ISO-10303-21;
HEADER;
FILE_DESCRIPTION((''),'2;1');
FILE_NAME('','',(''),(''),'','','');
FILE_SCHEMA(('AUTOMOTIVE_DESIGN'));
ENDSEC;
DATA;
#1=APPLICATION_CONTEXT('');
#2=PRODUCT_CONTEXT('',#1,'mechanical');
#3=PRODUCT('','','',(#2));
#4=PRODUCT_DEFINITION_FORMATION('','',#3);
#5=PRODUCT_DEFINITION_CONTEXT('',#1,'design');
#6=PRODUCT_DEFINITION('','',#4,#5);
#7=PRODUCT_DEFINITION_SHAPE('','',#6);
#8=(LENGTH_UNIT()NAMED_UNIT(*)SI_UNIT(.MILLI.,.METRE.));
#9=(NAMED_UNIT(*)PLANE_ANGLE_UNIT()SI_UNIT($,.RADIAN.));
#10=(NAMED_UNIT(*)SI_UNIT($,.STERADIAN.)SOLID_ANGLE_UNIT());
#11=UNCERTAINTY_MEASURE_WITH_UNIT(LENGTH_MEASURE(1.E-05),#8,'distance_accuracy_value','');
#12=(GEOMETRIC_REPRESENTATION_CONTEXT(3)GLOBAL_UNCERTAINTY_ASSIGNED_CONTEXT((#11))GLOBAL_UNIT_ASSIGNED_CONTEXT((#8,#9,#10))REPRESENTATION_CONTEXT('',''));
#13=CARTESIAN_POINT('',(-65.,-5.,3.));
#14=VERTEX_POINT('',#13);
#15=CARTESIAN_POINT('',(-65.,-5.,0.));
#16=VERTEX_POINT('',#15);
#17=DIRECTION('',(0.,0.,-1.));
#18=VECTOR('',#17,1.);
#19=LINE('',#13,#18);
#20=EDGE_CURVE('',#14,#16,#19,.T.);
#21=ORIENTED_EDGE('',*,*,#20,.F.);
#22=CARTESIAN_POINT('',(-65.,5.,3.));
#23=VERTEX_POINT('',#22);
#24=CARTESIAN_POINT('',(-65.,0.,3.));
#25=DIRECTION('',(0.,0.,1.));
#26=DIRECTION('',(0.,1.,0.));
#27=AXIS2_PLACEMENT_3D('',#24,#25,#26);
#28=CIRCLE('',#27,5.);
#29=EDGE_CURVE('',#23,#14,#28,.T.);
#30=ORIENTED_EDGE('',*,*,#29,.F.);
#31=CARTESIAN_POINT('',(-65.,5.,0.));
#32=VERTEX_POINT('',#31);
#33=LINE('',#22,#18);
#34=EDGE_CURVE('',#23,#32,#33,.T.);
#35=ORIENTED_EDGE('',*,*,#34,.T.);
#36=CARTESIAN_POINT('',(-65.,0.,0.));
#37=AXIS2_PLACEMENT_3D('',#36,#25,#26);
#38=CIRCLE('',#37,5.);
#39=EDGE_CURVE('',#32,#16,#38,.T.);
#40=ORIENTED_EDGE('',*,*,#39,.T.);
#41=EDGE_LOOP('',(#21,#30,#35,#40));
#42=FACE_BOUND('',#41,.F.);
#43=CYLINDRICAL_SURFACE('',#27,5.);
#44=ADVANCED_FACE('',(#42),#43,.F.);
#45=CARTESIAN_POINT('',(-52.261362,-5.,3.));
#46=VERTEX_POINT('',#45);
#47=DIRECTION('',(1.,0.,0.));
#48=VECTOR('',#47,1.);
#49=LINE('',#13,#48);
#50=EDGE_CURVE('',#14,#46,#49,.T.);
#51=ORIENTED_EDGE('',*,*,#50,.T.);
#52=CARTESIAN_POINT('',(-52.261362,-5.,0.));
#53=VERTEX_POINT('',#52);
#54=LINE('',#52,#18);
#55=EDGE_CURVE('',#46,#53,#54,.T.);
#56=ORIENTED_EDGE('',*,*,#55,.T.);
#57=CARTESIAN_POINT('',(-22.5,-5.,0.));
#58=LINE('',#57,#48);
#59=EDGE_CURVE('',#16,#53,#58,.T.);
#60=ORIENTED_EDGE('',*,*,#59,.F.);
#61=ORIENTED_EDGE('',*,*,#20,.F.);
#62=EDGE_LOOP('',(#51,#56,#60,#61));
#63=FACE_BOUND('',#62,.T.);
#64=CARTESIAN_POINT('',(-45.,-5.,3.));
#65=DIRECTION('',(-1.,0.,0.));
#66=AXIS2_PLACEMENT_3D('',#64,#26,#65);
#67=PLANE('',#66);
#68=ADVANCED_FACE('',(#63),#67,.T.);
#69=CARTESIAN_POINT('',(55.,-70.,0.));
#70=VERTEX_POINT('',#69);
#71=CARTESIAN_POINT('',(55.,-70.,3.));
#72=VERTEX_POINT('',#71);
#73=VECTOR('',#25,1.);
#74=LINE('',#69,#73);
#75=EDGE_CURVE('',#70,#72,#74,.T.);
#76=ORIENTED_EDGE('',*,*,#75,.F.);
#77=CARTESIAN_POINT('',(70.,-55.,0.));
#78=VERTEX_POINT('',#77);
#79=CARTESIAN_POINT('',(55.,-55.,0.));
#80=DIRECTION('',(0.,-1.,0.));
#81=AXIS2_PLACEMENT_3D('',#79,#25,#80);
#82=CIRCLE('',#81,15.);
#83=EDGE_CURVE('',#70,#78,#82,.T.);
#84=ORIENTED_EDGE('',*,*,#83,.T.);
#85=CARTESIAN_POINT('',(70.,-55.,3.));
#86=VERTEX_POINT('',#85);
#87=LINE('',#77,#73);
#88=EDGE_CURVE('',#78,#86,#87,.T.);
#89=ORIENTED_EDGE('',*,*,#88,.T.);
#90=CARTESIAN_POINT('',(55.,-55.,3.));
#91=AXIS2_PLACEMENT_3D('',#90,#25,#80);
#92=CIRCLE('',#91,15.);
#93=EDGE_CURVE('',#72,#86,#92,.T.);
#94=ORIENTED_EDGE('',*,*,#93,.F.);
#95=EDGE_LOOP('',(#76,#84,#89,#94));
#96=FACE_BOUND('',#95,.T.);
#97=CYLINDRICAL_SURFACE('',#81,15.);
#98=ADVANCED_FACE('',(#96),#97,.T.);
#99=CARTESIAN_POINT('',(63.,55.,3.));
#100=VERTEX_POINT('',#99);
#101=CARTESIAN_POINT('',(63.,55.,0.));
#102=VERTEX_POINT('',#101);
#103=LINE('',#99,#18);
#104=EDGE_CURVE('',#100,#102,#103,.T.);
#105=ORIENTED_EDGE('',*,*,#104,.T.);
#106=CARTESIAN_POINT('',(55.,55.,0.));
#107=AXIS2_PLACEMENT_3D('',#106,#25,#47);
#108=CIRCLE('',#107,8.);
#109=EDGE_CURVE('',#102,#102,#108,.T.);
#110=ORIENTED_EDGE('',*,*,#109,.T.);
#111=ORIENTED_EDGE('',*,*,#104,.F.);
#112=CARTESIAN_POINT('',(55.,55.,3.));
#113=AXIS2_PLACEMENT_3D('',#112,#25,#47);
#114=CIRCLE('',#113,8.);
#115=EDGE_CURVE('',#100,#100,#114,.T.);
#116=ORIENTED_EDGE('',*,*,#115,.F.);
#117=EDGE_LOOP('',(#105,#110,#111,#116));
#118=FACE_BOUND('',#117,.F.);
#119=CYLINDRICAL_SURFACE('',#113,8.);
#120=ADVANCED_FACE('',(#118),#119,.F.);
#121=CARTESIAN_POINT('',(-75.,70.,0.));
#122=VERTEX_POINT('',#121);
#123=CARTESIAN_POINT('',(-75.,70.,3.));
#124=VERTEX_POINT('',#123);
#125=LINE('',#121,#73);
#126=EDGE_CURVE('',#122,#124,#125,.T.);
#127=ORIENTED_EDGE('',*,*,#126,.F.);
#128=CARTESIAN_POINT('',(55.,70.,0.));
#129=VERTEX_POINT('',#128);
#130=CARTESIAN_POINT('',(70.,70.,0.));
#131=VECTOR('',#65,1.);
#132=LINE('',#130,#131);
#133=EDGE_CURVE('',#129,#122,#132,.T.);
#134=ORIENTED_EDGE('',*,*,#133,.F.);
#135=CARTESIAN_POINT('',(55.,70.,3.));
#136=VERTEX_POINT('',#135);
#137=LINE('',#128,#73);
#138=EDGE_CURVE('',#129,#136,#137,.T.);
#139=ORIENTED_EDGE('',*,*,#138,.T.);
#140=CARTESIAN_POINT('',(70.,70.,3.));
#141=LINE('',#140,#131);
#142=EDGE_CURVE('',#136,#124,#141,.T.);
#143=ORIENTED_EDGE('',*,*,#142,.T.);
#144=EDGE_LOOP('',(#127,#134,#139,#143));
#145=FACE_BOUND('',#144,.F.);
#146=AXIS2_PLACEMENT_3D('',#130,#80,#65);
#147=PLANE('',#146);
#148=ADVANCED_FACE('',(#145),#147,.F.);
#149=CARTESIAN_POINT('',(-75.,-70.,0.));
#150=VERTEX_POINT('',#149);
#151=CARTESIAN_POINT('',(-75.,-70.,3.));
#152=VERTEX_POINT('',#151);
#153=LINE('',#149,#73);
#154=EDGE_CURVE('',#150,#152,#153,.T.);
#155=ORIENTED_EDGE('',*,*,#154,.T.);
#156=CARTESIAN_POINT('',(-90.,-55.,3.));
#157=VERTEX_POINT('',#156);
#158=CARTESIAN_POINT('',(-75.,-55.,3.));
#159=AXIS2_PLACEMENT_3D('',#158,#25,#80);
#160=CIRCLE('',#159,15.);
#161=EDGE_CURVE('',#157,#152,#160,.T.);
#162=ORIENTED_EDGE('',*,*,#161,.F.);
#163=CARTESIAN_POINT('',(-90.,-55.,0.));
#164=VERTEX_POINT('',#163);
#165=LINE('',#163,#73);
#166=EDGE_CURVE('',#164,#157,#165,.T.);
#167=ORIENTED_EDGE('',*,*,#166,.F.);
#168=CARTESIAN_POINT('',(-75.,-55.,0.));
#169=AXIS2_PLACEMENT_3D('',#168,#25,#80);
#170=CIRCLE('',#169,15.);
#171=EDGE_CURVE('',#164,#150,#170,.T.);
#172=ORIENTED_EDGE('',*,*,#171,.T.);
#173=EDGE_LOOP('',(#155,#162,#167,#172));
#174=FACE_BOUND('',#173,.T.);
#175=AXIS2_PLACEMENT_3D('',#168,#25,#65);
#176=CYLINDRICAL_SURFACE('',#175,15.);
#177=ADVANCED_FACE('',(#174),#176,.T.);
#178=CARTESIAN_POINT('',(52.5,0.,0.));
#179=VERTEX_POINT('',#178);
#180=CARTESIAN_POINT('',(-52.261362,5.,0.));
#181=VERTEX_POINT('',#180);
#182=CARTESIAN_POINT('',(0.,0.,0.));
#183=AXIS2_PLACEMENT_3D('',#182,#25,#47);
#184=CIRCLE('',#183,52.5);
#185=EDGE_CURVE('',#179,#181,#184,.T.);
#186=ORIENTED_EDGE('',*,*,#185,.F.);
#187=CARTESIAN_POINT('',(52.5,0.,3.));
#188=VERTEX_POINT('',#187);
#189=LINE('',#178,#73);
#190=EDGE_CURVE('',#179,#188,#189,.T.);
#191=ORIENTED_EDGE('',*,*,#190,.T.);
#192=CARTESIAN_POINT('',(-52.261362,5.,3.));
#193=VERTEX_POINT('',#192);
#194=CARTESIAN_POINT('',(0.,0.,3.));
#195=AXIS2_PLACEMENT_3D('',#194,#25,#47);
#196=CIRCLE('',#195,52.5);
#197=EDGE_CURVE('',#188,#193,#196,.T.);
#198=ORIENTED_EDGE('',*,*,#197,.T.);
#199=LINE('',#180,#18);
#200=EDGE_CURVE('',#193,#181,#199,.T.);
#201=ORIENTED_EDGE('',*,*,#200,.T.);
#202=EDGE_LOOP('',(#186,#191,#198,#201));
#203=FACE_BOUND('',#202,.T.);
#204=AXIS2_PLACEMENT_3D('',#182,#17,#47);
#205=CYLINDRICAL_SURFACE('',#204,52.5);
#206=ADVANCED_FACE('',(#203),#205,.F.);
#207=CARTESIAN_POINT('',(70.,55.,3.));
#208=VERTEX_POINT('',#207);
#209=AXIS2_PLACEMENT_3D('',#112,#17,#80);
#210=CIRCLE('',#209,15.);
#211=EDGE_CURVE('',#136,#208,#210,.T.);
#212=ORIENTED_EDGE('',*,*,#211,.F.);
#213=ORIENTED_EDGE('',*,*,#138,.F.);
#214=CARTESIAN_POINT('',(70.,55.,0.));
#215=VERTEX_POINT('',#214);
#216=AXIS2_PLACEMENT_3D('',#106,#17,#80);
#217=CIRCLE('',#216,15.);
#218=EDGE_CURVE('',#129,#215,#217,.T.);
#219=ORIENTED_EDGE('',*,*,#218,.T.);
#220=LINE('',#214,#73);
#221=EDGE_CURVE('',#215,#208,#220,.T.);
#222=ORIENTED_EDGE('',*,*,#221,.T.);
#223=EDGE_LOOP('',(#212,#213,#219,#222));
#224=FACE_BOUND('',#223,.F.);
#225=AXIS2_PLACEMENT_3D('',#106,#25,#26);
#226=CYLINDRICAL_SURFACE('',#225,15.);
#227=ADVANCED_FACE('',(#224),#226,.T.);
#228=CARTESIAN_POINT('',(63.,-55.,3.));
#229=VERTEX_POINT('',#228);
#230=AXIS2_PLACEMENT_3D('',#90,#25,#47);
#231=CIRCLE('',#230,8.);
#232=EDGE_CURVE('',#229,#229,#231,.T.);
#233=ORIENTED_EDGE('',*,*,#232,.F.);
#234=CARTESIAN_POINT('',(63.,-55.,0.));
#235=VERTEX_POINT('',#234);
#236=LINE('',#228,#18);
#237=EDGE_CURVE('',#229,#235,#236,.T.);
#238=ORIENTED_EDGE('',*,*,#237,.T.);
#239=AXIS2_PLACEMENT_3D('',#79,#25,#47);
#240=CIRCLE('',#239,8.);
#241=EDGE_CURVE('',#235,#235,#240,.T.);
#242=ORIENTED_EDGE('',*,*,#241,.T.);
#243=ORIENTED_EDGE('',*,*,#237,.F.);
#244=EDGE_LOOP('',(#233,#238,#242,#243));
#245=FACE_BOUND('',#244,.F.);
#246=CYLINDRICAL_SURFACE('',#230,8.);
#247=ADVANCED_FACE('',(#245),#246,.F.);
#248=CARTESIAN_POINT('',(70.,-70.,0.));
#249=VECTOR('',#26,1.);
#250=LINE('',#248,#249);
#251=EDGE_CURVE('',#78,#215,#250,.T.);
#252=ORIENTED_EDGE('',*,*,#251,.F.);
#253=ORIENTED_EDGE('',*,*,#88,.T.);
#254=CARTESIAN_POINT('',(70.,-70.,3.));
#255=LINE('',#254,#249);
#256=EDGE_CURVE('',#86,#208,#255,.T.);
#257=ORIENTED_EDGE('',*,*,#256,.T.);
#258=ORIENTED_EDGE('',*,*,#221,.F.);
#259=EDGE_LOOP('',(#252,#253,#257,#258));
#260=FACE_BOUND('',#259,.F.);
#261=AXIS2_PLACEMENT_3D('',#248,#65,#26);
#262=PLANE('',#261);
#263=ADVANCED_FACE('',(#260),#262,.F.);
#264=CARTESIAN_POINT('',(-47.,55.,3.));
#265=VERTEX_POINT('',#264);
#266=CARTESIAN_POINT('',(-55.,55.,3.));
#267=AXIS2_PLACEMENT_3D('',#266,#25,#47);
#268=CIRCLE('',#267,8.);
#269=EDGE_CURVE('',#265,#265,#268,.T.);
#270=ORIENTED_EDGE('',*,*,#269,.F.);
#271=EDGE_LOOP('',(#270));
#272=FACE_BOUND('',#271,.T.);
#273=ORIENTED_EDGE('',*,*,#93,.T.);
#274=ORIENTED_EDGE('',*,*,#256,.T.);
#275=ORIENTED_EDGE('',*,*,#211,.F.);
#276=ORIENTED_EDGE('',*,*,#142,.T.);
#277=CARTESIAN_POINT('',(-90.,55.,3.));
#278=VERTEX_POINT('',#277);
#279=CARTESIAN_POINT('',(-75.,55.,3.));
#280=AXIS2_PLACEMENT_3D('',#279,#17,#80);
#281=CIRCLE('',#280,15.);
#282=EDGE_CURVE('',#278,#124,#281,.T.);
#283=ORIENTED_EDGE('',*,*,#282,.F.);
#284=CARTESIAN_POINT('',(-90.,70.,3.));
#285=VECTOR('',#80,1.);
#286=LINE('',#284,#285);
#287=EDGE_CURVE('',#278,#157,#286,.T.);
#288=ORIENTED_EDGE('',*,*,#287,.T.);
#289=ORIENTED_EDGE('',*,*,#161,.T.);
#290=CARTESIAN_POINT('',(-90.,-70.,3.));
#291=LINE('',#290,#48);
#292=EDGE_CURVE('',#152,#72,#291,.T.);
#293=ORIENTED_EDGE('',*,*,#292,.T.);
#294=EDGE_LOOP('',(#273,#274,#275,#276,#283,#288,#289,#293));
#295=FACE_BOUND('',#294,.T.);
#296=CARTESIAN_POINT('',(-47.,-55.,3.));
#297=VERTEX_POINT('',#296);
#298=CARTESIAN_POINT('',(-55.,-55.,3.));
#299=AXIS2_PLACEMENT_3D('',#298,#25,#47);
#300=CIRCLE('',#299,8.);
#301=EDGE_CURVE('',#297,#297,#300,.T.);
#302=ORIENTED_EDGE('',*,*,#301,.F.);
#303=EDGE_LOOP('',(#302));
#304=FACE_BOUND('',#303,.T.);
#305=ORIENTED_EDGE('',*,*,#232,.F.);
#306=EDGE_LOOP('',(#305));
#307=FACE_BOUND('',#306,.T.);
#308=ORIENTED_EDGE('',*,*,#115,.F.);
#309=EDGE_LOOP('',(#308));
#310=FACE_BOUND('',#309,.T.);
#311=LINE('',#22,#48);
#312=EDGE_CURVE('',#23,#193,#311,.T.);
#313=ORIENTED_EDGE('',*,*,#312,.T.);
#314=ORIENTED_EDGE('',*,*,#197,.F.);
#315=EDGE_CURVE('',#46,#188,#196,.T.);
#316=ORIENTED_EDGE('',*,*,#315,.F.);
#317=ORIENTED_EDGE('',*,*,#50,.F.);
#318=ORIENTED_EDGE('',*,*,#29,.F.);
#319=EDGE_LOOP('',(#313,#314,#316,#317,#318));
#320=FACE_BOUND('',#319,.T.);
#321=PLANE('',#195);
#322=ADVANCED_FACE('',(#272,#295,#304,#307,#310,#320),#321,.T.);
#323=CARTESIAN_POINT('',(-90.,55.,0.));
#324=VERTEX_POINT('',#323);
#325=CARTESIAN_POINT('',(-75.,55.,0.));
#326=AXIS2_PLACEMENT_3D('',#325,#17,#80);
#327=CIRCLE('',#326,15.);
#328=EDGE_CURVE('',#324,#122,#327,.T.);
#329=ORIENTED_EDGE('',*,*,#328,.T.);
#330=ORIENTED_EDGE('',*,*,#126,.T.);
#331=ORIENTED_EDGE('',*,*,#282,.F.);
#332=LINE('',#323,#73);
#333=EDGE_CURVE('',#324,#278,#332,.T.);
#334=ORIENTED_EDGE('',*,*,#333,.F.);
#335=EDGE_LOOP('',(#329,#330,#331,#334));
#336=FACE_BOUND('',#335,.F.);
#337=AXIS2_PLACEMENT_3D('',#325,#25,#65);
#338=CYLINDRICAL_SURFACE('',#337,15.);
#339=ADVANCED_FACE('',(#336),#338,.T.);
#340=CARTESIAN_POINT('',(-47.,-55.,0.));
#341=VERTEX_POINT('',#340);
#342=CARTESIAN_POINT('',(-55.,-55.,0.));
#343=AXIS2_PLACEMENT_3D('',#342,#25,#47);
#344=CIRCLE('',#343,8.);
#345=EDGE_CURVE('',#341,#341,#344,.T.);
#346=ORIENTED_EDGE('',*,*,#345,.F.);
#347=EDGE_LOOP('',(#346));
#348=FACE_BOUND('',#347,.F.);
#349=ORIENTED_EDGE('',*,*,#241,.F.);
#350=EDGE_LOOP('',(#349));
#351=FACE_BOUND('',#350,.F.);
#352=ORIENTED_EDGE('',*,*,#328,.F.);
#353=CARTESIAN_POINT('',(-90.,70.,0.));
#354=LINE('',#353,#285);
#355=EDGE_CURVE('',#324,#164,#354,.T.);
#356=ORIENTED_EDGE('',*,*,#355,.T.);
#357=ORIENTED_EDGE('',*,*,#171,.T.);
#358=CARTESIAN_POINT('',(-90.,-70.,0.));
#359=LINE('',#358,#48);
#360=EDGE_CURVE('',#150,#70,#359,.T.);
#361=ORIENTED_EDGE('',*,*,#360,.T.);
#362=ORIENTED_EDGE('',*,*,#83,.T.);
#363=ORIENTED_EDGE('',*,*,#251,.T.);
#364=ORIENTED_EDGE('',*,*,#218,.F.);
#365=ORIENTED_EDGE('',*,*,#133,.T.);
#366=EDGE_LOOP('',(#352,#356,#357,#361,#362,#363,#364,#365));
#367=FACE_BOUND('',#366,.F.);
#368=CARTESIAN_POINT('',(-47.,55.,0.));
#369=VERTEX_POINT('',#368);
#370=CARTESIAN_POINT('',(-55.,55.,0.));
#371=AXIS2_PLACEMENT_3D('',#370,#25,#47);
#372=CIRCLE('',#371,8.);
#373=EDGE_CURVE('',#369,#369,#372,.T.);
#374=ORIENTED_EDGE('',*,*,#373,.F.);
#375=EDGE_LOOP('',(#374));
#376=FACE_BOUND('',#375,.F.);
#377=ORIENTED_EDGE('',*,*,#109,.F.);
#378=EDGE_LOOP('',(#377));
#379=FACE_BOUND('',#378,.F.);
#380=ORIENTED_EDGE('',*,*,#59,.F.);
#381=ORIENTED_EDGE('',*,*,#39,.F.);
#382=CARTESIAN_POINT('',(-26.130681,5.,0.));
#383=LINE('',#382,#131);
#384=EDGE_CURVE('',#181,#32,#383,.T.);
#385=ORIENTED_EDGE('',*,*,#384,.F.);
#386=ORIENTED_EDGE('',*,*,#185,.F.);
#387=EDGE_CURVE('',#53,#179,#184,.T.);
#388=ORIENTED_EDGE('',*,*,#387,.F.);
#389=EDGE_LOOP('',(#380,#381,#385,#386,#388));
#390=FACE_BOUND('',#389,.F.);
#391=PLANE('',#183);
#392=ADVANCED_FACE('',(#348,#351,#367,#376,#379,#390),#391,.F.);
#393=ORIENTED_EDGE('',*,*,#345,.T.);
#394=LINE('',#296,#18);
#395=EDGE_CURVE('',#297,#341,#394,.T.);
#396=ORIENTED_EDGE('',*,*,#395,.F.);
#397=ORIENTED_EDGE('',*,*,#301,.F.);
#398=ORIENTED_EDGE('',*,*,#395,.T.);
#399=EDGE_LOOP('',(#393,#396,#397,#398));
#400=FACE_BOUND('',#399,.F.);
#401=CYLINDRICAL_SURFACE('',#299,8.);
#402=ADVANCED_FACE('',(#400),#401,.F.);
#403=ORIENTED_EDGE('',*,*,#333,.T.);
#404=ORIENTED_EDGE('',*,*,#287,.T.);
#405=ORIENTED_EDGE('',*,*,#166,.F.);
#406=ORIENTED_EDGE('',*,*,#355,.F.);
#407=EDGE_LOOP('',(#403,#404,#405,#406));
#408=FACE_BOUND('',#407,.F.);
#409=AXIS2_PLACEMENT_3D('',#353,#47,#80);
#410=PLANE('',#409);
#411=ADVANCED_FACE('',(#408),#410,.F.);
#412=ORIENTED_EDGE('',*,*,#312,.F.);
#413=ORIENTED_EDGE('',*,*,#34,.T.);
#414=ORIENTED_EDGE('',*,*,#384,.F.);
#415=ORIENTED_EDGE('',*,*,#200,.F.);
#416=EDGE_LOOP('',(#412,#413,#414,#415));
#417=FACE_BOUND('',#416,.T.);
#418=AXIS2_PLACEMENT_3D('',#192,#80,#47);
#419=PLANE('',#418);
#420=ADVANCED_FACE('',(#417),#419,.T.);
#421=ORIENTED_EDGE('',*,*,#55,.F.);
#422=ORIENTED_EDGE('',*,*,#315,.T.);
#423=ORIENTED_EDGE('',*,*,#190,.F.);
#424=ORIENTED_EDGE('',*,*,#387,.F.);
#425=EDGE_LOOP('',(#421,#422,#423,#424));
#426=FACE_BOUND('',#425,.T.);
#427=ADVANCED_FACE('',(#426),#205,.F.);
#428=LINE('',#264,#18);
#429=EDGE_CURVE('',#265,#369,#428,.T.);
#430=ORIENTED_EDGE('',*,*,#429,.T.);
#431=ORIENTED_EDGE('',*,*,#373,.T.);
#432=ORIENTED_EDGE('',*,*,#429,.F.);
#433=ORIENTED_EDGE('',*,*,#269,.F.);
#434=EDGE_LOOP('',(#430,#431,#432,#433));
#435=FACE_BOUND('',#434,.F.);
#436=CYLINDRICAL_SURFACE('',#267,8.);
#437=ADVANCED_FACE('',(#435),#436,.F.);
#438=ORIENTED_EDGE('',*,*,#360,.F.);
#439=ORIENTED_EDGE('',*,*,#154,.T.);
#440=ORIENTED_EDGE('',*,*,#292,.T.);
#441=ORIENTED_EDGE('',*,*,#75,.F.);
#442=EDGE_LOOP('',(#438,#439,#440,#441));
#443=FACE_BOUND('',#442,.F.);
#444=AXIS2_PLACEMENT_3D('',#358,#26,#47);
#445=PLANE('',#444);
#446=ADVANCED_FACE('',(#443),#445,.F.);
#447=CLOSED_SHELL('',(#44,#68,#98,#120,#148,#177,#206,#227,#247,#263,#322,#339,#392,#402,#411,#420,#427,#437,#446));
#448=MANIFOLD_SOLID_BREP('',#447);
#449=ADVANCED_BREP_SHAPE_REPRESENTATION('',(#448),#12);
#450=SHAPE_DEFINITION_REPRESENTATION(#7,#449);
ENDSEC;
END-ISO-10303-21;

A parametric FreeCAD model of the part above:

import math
import FreeCAD as App
import Part
import Sketcher
Q = App.Units.Quantity


def edges_at(feature, points):
    """Names of the edges that pass closest to the given points."""
    edges = feature.Shape.Edges
    near = lambda p: min(range(len(edges)), key=lambda i: edges[i].distToShape(Part.Vertex(*p))[0])
    return sorted({f"Edge{near(p) + 1}" for p in points})

doc = App.newDocument("Part")
body = doc.addObject("PartDesign::Body", "Body")

# Sketch on XY plane
sketch1 = body.newObject("Sketcher::SketchObject", "Sketch")
sketch1.AttachmentSupport = (doc.getObject("XY_Plane"), [""])
sketch1.MapMode = "FlatFace"
sketch1.addGeometry(Part.LineSegment(App.Vector(-90, 70, 0), App.Vector(-90, -70, 0)), False)
sketch1.addGeometry(Part.LineSegment(App.Vector(-90, -70, 0), App.Vector(70, -70, 0)), False)
sketch1.addGeometry(Part.LineSegment(App.Vector(70, -70, 0), App.Vector(70, 70, 0)), False)
sketch1.addGeometry(Part.LineSegment(App.Vector(70, 70, 0), App.Vector(-90, 70, 0)), False)
sketch1.addGeometry(Part.Circle(App.Vector(0, 0, 0), App.Vector(0, 0, 1), 52.5), False)
sketch1.addConstraint(Sketcher.Constraint("Coincident", 0, 2, 1, 1))
sketch1.addConstraint(Sketcher.Constraint("Coincident", 1, 2, 2, 1))
sketch1.addConstraint(Sketcher.Constraint("Coincident", 2, 2, 3, 1))
sketch1.addConstraint(Sketcher.Constraint("Coincident", 3, 2, 0, 1))
sketch1.addConstraint(Sketcher.Constraint("Vertical", 0))
sketch1.addConstraint(Sketcher.Constraint("Horizontal", 1))
sketch1.addConstraint(Sketcher.Constraint("Vertical", 2))
sketch1.addConstraint(Sketcher.Constraint("Horizontal", 3))
sketch1.addConstraint(Sketcher.Constraint("Coincident", 4, 3, -1, 1))
sketch1.addConstraint(Sketcher.Constraint("Diameter", 4, Q("105 mm")))
sketch1.addConstraint(Sketcher.Constraint("DistanceX", 1, 1, 1, 2, Q("160 mm")))
sketch1.addConstraint(Sketcher.Constraint("DistanceY", 0, 2, 0, 1, Q("140 mm")))
sketch1.addConstraint(Sketcher.Constraint("DistanceY", 0, 2, -1, 1, Q("70 mm")))
sketch1.addConstraint(Sketcher.Constraint("DistanceX", -1, 1, 1, 2, Q("70 mm")))
pad1 = body.newObject("PartDesign::Pad", "Pad")
pad1.Profile = sketch1
pad1.Length = 3

# Sketch on XY plane
sketch2 = body.newObject("Sketcher::SketchObject", "Sketch001")
sketch2.AttachmentSupport = (doc.getObject("XY_Plane"), [""])
sketch2.MapMode = "FlatFace"
sketch2.AttachmentOffset = App.Placement(App.Vector(0, 0, 3), App.Rotation())
sketch2.addGeometry(Part.Circle(App.Vector(-55, 55, 0), App.Vector(0, 0, 1), 8), False)
sketch2.addGeometry(Part.Circle(App.Vector(55, 55, 0), App.Vector(0, 0, 1), 8), False)
sketch2.addGeometry(Part.Circle(App.Vector(55, -55, 0), App.Vector(0, 0, 1), 8), False)
sketch2.addGeometry(Part.Circle(App.Vector(-55, -55, 0), App.Vector(0, 0, 1), 8), False)
sketch2.addConstraint(Sketcher.Constraint("Equal", 0, 1))
sketch2.addConstraint(Sketcher.Constraint("Equal", 1, 2))
sketch2.addConstraint(Sketcher.Constraint("Equal", 2, 3))
sketch2.addConstraint(Sketcher.Constraint("Symmetric", 0, 3, 2, 3, -1, 1))
sketch2.addConstraint(Sketcher.Constraint("Symmetric", 1, 3, 3, 3, -1, 1))
sketch2.addConstraint(Sketcher.Constraint("Symmetric", 0, 3, 1, 3, -2))
sketch2.addConstraint(Sketcher.Constraint("Diameter", 0, Q("16 mm")))
sketch2.addConstraint(Sketcher.Constraint("DistanceX", 0, 3, 1, 3, Q("110 mm")))
sketch2.addConstraint(Sketcher.Constraint("DistanceY", 2, 3, 1, 3, Q("110 mm")))
pocket1 = body.newObject("PartDesign::Pocket", "Pocket")
pocket1.Profile = sketch2
pocket1.Length = 3

# Sketch on XY plane
sketch3 = body.newObject("Sketcher::SketchObject", "Sketch002")
sketch3.AttachmentSupport = (doc.getObject("XY_Plane"), [""])
sketch3.MapMode = "FlatFace"
sketch3.AttachmentOffset = App.Placement(App.Vector(0, 0, 3), App.Rotation())
sketch3.addGeometry(Part.LineSegment(App.Vector(-45, 5, 0), App.Vector(-65, 5, 0)), False)
sketch3.addGeometry(Part.ArcOfCircle(Part.Circle(App.Vector(-65, 0, 0), App.Vector(0, 0, 1), 5), math.radians(90), math.radians(270)), False)
sketch3.addGeometry(Part.LineSegment(App.Vector(-65, -5, 0), App.Vector(-45, -5, 0)), False)
sketch3.addGeometry(Part.LineSegment(App.Vector(-45, -5, 0), App.Vector(-45, 5, 0)), False)
sketch3.addConstraint(Sketcher.Constraint("Tangent", 0, 2, 1, 1))
sketch3.addConstraint(Sketcher.Constraint("Tangent", 1, 2, 2, 1))
sketch3.addConstraint(Sketcher.Constraint("Coincident", 2, 2, 3, 1))
sketch3.addConstraint(Sketcher.Constraint("Coincident", 3, 2, 0, 1))
sketch3.addConstraint(Sketcher.Constraint("Horizontal", 0))
sketch3.addConstraint(Sketcher.Constraint("Horizontal", 2))
sketch3.addConstraint(Sketcher.Constraint("Vertical", 3))
sketch3.addConstraint(Sketcher.Constraint("PointOnObject", 1, 3, -1))
sketch3.addConstraint(Sketcher.Constraint("Radius", 1, Q("5 mm")))
sketch3.addConstraint(Sketcher.Constraint("DistanceX", 0, 2, 0, 1, Q("20 mm")))
sketch3.addConstraint(Sketcher.Constraint("DistanceX", 1, 3, -1, 1, Q("65 mm")))
pocket2 = body.newObject("PartDesign::Pocket", "Pocket001")
pocket2.Profile = sketch3
pocket2.Type = "UpToFirst"
doc.recompute()

fillet = body.newObject("PartDesign::Fillet", "Fillet")
fillet.Base = (pocket2, edges_at(pocket2, [
    (70, 70, 1.5),
    (70, -70, 1.5),
    (-90, -70, 1.5),
    (-90, 70, 1.5),
]))
fillet.Radius = 15

doc.recompute()
